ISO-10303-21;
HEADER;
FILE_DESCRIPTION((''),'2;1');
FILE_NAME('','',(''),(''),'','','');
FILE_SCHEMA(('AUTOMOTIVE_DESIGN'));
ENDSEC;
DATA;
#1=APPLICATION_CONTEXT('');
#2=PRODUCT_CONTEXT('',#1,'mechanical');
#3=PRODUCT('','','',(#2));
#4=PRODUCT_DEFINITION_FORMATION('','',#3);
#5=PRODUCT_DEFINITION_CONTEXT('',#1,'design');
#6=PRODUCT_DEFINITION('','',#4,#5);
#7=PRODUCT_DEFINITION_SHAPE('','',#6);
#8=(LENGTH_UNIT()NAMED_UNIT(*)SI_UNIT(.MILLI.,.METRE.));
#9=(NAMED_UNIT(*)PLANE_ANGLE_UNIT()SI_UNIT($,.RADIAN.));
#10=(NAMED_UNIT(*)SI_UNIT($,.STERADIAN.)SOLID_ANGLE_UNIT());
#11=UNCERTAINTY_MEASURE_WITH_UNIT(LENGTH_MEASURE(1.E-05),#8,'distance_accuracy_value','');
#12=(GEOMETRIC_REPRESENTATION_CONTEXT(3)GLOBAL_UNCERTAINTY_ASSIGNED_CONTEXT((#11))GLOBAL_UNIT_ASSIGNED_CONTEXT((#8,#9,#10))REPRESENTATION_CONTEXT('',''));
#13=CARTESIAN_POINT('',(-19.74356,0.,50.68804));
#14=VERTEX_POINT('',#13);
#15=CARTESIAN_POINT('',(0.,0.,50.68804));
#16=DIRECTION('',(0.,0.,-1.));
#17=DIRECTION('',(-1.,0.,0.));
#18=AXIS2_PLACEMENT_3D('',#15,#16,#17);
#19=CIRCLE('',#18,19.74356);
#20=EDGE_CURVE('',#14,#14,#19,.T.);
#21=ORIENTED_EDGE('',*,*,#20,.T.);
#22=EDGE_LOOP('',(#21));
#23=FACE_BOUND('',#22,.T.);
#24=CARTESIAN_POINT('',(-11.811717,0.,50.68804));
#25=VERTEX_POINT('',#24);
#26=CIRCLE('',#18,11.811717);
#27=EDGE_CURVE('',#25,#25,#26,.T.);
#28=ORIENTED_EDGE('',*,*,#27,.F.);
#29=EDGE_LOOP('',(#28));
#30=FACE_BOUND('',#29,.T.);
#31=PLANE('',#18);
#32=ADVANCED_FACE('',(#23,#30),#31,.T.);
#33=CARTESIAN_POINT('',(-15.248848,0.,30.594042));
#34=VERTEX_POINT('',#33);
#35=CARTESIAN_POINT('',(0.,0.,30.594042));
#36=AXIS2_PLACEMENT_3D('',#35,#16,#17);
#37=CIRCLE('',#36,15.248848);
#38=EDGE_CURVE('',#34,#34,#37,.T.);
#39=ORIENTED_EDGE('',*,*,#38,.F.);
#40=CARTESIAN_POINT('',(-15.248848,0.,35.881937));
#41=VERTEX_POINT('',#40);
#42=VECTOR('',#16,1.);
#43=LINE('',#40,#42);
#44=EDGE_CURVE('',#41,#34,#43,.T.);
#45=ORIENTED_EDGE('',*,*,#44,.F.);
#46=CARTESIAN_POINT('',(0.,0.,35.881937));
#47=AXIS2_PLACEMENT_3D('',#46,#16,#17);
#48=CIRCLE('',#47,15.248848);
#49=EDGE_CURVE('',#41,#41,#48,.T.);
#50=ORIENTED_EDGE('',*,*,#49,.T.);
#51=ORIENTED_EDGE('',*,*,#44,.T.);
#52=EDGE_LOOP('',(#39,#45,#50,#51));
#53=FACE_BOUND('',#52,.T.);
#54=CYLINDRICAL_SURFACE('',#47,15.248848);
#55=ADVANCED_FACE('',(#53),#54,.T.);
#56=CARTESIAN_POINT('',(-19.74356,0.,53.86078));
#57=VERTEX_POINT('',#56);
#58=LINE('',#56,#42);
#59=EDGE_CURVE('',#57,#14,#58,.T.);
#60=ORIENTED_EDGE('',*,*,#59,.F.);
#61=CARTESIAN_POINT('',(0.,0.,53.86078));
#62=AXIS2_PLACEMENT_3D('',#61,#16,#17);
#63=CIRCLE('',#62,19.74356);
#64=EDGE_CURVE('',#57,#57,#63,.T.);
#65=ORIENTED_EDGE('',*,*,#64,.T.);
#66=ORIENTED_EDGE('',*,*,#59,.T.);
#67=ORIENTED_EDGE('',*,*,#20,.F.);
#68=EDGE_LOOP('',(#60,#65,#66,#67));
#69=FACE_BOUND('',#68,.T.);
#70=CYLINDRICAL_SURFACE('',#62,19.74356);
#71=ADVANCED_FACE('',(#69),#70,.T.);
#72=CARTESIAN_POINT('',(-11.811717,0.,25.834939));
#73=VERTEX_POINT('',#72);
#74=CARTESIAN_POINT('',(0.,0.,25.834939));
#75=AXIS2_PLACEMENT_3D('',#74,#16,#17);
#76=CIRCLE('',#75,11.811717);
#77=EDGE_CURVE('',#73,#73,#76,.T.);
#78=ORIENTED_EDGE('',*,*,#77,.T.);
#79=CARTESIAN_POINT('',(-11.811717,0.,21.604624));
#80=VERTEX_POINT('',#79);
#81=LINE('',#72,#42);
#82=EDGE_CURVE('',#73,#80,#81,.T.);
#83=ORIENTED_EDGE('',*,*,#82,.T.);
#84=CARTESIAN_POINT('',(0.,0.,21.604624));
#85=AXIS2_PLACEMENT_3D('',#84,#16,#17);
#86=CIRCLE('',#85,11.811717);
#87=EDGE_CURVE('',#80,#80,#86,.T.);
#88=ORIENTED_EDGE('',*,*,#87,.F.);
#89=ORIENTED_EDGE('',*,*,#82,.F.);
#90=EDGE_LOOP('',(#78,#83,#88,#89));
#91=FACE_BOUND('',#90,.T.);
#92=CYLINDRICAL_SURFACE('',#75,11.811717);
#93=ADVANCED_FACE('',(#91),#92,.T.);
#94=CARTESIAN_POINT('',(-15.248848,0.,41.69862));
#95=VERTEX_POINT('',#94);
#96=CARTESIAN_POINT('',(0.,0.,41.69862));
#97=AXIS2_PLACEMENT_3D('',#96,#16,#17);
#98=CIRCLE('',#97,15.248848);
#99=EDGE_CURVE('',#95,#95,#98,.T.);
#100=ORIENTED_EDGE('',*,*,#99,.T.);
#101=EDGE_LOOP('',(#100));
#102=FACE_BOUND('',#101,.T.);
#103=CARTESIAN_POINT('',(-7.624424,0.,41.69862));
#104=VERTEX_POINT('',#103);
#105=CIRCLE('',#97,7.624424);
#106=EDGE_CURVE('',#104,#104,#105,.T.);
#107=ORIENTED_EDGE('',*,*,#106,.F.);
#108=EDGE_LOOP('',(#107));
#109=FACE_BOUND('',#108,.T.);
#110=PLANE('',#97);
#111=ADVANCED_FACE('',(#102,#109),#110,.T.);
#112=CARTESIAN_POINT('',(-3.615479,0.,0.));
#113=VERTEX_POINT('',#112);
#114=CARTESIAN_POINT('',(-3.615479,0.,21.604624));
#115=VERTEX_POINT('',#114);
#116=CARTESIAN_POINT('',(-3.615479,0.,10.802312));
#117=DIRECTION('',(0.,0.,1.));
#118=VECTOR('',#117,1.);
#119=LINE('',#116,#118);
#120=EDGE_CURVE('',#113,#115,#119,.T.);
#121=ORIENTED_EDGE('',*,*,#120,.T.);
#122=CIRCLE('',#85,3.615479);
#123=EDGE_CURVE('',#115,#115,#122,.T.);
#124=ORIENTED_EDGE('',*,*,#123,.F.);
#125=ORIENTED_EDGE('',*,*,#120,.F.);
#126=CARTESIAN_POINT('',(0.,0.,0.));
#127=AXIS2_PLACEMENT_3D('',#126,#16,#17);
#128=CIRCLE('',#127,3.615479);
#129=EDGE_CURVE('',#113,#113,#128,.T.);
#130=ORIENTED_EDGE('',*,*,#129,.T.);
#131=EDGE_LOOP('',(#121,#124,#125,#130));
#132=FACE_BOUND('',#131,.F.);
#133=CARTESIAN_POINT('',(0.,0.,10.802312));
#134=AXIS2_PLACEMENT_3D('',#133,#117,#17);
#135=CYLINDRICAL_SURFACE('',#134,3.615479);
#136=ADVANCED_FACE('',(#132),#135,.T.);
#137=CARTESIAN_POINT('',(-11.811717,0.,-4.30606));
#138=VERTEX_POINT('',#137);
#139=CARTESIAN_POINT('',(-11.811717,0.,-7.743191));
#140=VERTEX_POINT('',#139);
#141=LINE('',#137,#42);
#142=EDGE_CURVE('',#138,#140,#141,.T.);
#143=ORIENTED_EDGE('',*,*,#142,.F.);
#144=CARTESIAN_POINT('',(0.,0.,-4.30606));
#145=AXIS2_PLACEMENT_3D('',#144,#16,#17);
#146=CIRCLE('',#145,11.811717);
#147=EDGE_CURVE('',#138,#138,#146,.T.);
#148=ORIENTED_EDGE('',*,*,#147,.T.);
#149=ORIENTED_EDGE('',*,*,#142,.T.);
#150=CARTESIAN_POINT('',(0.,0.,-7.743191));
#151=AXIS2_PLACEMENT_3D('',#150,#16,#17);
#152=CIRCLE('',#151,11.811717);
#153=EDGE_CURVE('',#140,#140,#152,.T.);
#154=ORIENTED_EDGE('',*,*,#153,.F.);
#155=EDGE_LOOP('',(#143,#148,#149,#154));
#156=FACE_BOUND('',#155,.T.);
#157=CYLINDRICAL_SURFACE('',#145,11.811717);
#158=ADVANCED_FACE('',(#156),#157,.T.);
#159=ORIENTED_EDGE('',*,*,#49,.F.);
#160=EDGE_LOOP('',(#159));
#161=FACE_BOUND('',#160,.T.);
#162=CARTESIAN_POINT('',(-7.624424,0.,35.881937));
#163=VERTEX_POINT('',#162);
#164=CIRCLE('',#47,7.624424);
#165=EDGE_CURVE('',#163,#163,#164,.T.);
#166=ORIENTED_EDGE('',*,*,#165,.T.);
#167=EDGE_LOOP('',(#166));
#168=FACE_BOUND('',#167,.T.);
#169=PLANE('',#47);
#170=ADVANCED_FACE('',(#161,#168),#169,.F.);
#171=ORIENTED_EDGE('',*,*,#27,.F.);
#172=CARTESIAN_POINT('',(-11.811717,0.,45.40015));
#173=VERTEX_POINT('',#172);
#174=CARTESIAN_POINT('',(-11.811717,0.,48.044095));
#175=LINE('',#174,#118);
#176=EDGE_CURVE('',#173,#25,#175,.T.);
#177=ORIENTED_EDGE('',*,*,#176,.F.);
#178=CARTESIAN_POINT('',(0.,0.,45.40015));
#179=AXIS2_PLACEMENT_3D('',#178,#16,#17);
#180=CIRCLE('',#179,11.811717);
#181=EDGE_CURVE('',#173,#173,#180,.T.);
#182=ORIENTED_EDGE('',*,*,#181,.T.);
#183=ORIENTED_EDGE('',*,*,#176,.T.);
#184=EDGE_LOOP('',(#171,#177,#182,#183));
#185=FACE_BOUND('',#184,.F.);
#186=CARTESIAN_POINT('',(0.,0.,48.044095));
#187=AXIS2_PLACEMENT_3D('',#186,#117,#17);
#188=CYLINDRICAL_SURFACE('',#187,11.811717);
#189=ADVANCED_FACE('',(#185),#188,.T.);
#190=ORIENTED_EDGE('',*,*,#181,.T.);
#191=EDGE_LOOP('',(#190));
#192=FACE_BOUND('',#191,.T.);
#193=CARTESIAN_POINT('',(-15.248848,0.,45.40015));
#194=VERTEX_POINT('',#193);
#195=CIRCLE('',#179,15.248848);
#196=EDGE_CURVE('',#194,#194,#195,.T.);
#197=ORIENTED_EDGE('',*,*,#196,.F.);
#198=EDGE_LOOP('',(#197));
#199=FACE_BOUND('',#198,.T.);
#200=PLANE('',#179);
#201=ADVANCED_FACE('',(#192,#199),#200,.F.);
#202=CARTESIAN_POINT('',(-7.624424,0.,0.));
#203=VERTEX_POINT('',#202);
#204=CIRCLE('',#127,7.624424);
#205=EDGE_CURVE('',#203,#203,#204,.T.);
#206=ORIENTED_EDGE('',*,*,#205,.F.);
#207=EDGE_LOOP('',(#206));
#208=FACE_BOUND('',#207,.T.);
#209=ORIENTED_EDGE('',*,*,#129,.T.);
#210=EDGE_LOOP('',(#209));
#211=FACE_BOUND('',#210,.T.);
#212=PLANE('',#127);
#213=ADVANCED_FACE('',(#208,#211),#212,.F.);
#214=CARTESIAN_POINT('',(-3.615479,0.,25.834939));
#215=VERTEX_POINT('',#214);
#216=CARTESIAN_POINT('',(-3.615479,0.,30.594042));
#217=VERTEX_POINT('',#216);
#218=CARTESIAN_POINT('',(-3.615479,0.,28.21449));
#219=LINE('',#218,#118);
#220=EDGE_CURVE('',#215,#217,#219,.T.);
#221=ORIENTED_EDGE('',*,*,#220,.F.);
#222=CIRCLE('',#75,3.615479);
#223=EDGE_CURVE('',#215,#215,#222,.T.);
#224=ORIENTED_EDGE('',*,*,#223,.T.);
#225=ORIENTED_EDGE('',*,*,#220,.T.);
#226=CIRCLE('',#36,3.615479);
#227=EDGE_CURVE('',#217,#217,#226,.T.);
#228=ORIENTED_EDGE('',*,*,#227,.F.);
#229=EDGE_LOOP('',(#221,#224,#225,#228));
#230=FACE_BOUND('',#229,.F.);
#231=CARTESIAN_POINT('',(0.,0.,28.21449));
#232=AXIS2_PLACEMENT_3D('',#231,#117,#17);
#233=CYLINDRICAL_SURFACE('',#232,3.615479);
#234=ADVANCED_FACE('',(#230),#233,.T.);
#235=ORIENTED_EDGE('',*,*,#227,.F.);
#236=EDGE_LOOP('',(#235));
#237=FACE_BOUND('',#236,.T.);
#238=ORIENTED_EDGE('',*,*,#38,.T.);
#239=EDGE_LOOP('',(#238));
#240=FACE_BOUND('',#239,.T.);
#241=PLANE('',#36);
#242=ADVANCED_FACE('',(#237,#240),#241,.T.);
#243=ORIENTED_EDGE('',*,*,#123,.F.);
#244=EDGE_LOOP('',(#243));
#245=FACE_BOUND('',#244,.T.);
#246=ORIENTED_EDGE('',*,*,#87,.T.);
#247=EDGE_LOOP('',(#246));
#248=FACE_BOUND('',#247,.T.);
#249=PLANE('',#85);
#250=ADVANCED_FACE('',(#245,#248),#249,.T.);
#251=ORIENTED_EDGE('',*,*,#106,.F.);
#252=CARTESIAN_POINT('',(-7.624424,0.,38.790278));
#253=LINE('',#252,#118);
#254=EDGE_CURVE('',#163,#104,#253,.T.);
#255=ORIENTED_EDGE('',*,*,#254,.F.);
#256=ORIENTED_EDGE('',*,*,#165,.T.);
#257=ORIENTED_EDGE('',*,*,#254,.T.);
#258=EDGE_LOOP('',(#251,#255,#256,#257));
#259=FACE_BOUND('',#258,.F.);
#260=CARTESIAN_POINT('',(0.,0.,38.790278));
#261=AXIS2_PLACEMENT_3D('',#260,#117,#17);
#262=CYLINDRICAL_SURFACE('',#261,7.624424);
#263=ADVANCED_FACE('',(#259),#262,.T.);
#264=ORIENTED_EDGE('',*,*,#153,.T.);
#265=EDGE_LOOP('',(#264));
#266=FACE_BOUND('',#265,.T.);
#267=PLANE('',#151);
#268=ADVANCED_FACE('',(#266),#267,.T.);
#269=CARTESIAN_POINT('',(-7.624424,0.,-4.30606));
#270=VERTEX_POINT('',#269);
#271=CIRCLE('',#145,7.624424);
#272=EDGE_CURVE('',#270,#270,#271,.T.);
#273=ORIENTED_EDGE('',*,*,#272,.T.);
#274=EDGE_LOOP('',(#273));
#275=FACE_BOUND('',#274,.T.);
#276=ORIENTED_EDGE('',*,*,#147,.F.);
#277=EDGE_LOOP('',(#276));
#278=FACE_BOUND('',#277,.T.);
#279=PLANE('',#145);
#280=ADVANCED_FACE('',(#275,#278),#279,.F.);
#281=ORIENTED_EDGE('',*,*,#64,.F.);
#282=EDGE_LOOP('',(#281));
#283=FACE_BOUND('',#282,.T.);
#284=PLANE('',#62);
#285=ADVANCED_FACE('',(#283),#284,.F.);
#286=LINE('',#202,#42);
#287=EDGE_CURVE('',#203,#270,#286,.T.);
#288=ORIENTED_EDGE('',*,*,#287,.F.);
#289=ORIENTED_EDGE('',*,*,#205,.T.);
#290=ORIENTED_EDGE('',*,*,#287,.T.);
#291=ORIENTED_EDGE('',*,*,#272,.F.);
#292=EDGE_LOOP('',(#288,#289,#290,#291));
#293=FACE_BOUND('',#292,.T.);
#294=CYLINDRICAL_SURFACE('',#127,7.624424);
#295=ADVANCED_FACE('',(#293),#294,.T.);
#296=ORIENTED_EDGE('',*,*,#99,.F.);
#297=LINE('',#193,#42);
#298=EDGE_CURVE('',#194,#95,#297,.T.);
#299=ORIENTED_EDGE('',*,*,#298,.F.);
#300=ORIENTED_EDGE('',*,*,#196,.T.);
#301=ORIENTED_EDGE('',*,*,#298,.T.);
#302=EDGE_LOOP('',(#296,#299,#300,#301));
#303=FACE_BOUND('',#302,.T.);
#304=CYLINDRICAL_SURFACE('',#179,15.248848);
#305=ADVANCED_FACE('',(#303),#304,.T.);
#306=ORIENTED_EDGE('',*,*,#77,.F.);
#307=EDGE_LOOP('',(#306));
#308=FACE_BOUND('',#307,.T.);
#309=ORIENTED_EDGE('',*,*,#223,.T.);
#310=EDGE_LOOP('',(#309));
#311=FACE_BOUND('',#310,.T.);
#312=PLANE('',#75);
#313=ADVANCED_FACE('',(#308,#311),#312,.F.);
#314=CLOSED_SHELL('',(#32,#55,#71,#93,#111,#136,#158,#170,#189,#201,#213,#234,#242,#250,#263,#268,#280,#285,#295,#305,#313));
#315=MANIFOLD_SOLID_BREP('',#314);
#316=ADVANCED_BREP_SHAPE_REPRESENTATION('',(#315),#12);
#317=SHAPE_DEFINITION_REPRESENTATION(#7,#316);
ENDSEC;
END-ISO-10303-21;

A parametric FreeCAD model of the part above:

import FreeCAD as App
import Part
import Sketcher
from FreeCAD import Vector
Q = App.Units.Quantity

doc = App.newDocument("Part")
body = doc.addObject("PartDesign::Body", "Body")

sketch1 = body.newObject("Sketcher::SketchObject", "Sketch")
sketch1.AttachmentSupport = (doc.getObject("XZ_Plane"), [""])
sketch1.MapMode = "FlatFace"
sketch1.addGeometry(Part.LineSegment(Vector(0, 53.9, 0), Vector(-19.7, 53.9, 0)), False)
sketch1.addGeometry(Part.LineSegment(Vector(-19.7, 53.9, 0), Vector(-19.7, 50.7, 0)), False)
sketch1.addGeometry(Part.LineSegment(Vector(-19.7, 50.7, 0), Vector(-11.8, 50.7, 0)), False)
sketch1.addGeometry(Part.LineSegment(Vector(-11.8, 50.7, 0), Vector(-11.8, 45.4, 0)), False)
sketch1.addGeometry(Part.LineSegment(Vector(-11.8, 45.4, 0), Vector(-15.2, 45.4, 0)), False)
sketch1.addGeometry(Part.LineSegment(Vector(-15.2, 45.4, 0), Vector(-15.2, 41.7, 0)), False)
sketch1.addGeometry(Part.LineSegment(Vector(-15.2, 41.7, 0), Vector(-7.6, 41.7, 0)), False)
sketch1.addGeometry(Part.LineSegment(Vector(-7.6, 41.7, 0), Vector(-7.6, 35.9, 0)), False)
sketch1.addGeometry(Part.LineSegment(Vector(-7.6, 35.9, 0), Vector(-15.2, 35.9, 0)), False)
sketch1.addGeometry(Part.LineSegment(Vector(-15.2, 35.9, 0), Vector(-15.2, 30.6, 0)), False)
sketch1.addGeometry(Part.LineSegment(Vector(-15.2, 30.6, 0), Vector(-3.6, 30.6, 0)), False)
sketch1.addGeometry(Part.LineSegment(Vector(-3.6, 30.6, 0), Vector(-3.6, 25.8, 0)), False)
sketch1.addGeometry(Part.LineSegment(Vector(-3.6, 25.8, 0), Vector(-11.8, 25.8, 0)), False)
sketch1.addGeometry(Part.LineSegment(Vector(-11.8, 25.8, 0), Vector(-11.8, 21.6, 0)), False)
sketch1.addGeometry(Part.LineSegment(Vector(-11.8, 21.6, 0), Vector(-3.6, 21.6, 0)), False)
sketch1.addGeometry(Part.LineSegment(Vector(-3.6, 21.6, 0), Vector(-3.6, 0, 0)), False)
sketch1.addGeometry(Part.LineSegment(Vector(-3.6, 0, 0), Vector(-7.6, 0, 0)), False)
sketch1.addGeometry(Part.LineSegment(Vector(-7.6, 0, 0), Vector(-7.6, -4.3, 0)), False)
sketch1.addGeometry(Part.LineSegment(Vector(-7.6, -4.3, 0), Vector(-11.8, -4.3, 0)), False)
sketch1.addGeometry(Part.LineSegment(Vector(-11.8, -4.3, 0), Vector(-11.8, -7.7, 0)), False)
sketch1.addGeometry(Part.LineSegment(Vector(-11.8, -7.7, 0), Vector(0, -7.7, 0)), False)
sketch1.addGeometry(Part.LineSegment(Vector(0, -7.7, 0), Vector(0, 0, 0)), False)
sketch1.addGeometry(Part.LineSegment(Vector(0, 0, 0), Vector(0, 21.6, 0)), False)
sketch1.addGeometry(Part.LineSegment(Vector(0, 21.6, 0), Vector(0, 25.8, 0)), False)
sketch1.addGeometry(Part.LineSegment(Vector(0, 25.8, 0), Vector(0, 30.6, 0)), False)
sketch1.addGeometry(Part.LineSegment(Vector(0, 30.6, 0), Vector(0, 35.9, 0)), False)
sketch1.addGeometry(Part.LineSegment(Vector(0, 35.9, 0), Vector(0, 41.7, 0)), False)
sketch1.addGeometry(Part.LineSegment(Vector(0, 41.7, 0), Vector(0, 53.9, 0)), False)
sketch1.addConstraint(Sketcher.Constraint("Coincident", 0, 2, 1, 1))
sketch1.addConstraint(Sketcher.Constraint("Coincident", 1, 2, 2, 1))
sketch1.addConstraint(Sketcher.Constraint("Coincident", 2, 2, 3, 1))
sketch1.addConstraint(Sketcher.Constraint("Coincident", 3, 2, 4, 1))
sketch1.addConstraint(Sketcher.Constraint("Coincident", 4, 2, 5, 1))
sketch1.addConstraint(Sketcher.Constraint("Coincident", 5, 2, 6, 1))
sketch1.addConstraint(Sketcher.Constraint("Coincident", 6, 2, 7, 1))
sketch1.addConstraint(Sketcher.Constraint("Coincident", 7, 2, 8, 1))
sketch1.addConstraint(Sketcher.Constraint("Coincident", 8, 2, 9, 1))
sketch1.addConstraint(Sketcher.Constraint("Coincident", 9, 2, 10, 1))
sketch1.addConstraint(Sketcher.Constraint("Coincident", 10, 2, 11, 1))
sketch1.addConstraint(Sketcher.Constraint("Coincident", 11, 2, 12, 1))
sketch1.addConstraint(Sketcher.Constraint("Coincident", 12, 2, 13, 1))
sketch1.addConstraint(Sketcher.Constraint("Coincident", 13, 2, 14, 1))
sketch1.addConstraint(Sketcher.Constraint("Coincident", 14, 2, 15, 1))
sketch1.addConstraint(Sketcher.Constraint("Coincident", 15, 2, 16, 1))
sketch1.addConstraint(Sketcher.Constraint("Coincident", 16, 2, 17, 1))
sketch1.addConstraint(Sketcher.Constraint("Coincident", 17, 2, 18, 1))
sketch1.addConstraint(Sketcher.Constraint("Coincident", 18, 2, 19, 1))
sketch1.addConstraint(Sketcher.Constraint("Coincident", 19, 2, 20, 1))
sketch1.addConstraint(Sketcher.Constraint("Coincident", 20, 2, 21, 1))
sketch1.addConstraint(Sketcher.Constraint("Coincident", 21, 2, 22, 1))
sketch1.addConstraint(Sketcher.Constraint("Coincident", 22, 2, 23, 1))
sketch1.addConstraint(Sketcher.Constraint("Coincident", 23, 2, 24, 1))
sketch1.addConstraint(Sketcher.Constraint("Coincident", 24, 2, 25, 1))
sketch1.addConstraint(Sketcher.Constraint("Coincident", 25, 2, 26, 1))
sketch1.addConstraint(Sketcher.Constraint("Coincident", 26, 2, 27, 1))
sketch1.addConstraint(Sketcher.Constraint("Coincident", 27, 2, 0, 1))
sketch1.addConstraint(Sketcher.Constraint("Horizontal", 0))
sketch1.addConstraint(Sketcher.Constraint("Vertical", 1))
sketch1.addConstraint(Sketcher.Constraint("Horizontal", 2))
sketch1.addConstraint(Sketcher.Constraint("Vertical", 3))
sketch1.addConstraint(Sketcher.Constraint("Horizontal", 4))
sketch1.addConstraint(Sketcher.Constraint("Vertical", 5))
sketch1.addConstraint(Sketcher.Constraint("Horizontal", 6))
sketch1.addConstraint(Sketcher.Constraint("Vertical", 7))
sketch1.addConstraint(Sketcher.Constraint("Horizontal", 8))
sketch1.addConstraint(Sketcher.Constraint("Vertical", 9))
sketch1.addConstraint(Sketcher.Constraint("Horizontal", 10))
sketch1.addConstraint(Sketcher.Constraint("Vertical", 11))
sketch1.addConstraint(Sketcher.Constraint("Horizontal", 12))
sketch1.addConstraint(Sketcher.Constraint("Vertical", 13))
sketch1.addConstraint(Sketcher.Constraint("Horizontal", 14))
sketch1.addConstraint(Sketcher.Constraint("Vertical", 15))
sketch1.addConstraint(Sketcher.Constraint("Horizontal", 16))
sketch1.addConstraint(Sketcher.Constraint("Vertical", 17))
sketch1.addConstraint(Sketcher.Constraint("Horizontal", 18))
sketch1.addConstraint(Sketcher.Constraint("Vertical", 19))
sketch1.addConstraint(Sketcher.Constraint("Horizontal", 20))
sketch1.addConstraint(Sketcher.Constraint("Vertical", 21))
sketch1.addConstraint(Sketcher.Constraint("Vertical", 22))
sketch1.addConstraint(Sketcher.Constraint("Vertical", 23))
sketch1.addConstraint(Sketcher.Constraint("Vertical", 24))
sketch1.addConstraint(Sketcher.Constraint("Vertical", 25))
sketch1.addConstraint(Sketcher.Constraint("Vertical", 26))
sketch1.addConstraint(Sketcher.Constraint("Vertical", 27))
sketch1.addConstraint(Sketcher.Constraint("Coincident", 21, 2, -1, 1))
sketch1.addConstraint(Sketcher.Constraint("PointOnObject", 15, 2, -1))
sketch1.addConstraint(Sketcher.Constraint("Horizontal", 14, 2, 22, 2))
sketch1.addConstraint(Sketcher.Constraint("Horizontal", 12, 2, 23, 2))
sketch1.addConstraint(Sketcher.Constraint("Horizontal", 10, 2, 24, 2))
sketch1.addConstraint(Sketcher.Constraint("Horizontal", 8, 2, 25, 2))
sketch1.addConstraint(Sketcher.Constraint("Horizontal", 6, 2, 26, 2))
sketch1.addConstraint(Sketcher.Constraint("Vertical", 5, 2, 8, 2))
sketch1.addConstraint(Sketcher.Constraint("Vertical", 3, 2, 12, 2))
sketch1.addConstraint(Sketcher.Constraint("Vertical", 11, 2, 14, 2))
sketch1.addConstraint(Sketcher.Constraint("Vertical", 7, 2, 16, 2))
sketch1.addConstraint(Sketcher.Constraint("Vertical", 13, 2, 18, 2))
sketch1.addConstraint(Sketcher.Constraint("Equal", 4, 19))
sketch1.addConstraint(Sketcher.Constraint("DistanceY", 11, 2, 7, 2, Q("10.046998 mm")))
sketch1.addConstraint(Sketcher.Constraint("DistanceY", 17, 2, 11, 2, Q("30.140998 mm")))
sketch1.addConstraint(Sketcher.Constraint("DistanceX", 0, 2, 0, 1, Q("19.74356 mm")))
sketch1.addConstraint(Sketcher.Constraint("DistanceX", 4, 2, 4, 1, Q("3.437131 mm")))
sketch1.addConstraint(Sketcher.Constraint("DistanceX", 10, 1, 10, 2, Q("11.633369 mm")))
sketch1.addConstraint(Sketcher.Constraint("DistanceY", 1, 2, 1, 1, Q("3.17274 mm")))
sketch1.addConstraint(Sketcher.Constraint("DistanceY", 3, 2, 3, 1, Q("5.287889 mm")))
sketch1.addConstraint(Sketcher.Constraint("DistanceY", 5, 2, 5, 1, Q("3.70153 mm")))
sketch1.addConstraint(Sketcher.Constraint("DistanceY", 17, 2, 17, 1, Q("4.30606 mm")))
sketch1.addConstraint(Sketcher.Constraint("DistanceX", 2, 1, 2, 2, Q("7.931842 mm")))
sketch1.addConstraint(Sketcher.Constraint("DistanceX", 6, 1, 6, 2, Q("7.624424 mm")))
sketch1.addConstraint(Sketcher.Constraint("DistanceY", 7, 2, 7, 1, Q("5.816683 mm")))
sketch1.addConstraint(Sketcher.Constraint("DistanceY", 9, 2, 9, 1, Q("5.287895 mm")))
sketch1.addConstraint(Sketcher.Constraint("DistanceY", 13, 2, 13, 1, Q("4.230315 mm")))
revolution = body.newObject("PartDesign::Revolution", "Revolution")
revolution.Profile = sketch1
revolution.ReferenceAxis = (sketch1, ["V_Axis"])
revolution.Angle = 360

doc.recompute()
